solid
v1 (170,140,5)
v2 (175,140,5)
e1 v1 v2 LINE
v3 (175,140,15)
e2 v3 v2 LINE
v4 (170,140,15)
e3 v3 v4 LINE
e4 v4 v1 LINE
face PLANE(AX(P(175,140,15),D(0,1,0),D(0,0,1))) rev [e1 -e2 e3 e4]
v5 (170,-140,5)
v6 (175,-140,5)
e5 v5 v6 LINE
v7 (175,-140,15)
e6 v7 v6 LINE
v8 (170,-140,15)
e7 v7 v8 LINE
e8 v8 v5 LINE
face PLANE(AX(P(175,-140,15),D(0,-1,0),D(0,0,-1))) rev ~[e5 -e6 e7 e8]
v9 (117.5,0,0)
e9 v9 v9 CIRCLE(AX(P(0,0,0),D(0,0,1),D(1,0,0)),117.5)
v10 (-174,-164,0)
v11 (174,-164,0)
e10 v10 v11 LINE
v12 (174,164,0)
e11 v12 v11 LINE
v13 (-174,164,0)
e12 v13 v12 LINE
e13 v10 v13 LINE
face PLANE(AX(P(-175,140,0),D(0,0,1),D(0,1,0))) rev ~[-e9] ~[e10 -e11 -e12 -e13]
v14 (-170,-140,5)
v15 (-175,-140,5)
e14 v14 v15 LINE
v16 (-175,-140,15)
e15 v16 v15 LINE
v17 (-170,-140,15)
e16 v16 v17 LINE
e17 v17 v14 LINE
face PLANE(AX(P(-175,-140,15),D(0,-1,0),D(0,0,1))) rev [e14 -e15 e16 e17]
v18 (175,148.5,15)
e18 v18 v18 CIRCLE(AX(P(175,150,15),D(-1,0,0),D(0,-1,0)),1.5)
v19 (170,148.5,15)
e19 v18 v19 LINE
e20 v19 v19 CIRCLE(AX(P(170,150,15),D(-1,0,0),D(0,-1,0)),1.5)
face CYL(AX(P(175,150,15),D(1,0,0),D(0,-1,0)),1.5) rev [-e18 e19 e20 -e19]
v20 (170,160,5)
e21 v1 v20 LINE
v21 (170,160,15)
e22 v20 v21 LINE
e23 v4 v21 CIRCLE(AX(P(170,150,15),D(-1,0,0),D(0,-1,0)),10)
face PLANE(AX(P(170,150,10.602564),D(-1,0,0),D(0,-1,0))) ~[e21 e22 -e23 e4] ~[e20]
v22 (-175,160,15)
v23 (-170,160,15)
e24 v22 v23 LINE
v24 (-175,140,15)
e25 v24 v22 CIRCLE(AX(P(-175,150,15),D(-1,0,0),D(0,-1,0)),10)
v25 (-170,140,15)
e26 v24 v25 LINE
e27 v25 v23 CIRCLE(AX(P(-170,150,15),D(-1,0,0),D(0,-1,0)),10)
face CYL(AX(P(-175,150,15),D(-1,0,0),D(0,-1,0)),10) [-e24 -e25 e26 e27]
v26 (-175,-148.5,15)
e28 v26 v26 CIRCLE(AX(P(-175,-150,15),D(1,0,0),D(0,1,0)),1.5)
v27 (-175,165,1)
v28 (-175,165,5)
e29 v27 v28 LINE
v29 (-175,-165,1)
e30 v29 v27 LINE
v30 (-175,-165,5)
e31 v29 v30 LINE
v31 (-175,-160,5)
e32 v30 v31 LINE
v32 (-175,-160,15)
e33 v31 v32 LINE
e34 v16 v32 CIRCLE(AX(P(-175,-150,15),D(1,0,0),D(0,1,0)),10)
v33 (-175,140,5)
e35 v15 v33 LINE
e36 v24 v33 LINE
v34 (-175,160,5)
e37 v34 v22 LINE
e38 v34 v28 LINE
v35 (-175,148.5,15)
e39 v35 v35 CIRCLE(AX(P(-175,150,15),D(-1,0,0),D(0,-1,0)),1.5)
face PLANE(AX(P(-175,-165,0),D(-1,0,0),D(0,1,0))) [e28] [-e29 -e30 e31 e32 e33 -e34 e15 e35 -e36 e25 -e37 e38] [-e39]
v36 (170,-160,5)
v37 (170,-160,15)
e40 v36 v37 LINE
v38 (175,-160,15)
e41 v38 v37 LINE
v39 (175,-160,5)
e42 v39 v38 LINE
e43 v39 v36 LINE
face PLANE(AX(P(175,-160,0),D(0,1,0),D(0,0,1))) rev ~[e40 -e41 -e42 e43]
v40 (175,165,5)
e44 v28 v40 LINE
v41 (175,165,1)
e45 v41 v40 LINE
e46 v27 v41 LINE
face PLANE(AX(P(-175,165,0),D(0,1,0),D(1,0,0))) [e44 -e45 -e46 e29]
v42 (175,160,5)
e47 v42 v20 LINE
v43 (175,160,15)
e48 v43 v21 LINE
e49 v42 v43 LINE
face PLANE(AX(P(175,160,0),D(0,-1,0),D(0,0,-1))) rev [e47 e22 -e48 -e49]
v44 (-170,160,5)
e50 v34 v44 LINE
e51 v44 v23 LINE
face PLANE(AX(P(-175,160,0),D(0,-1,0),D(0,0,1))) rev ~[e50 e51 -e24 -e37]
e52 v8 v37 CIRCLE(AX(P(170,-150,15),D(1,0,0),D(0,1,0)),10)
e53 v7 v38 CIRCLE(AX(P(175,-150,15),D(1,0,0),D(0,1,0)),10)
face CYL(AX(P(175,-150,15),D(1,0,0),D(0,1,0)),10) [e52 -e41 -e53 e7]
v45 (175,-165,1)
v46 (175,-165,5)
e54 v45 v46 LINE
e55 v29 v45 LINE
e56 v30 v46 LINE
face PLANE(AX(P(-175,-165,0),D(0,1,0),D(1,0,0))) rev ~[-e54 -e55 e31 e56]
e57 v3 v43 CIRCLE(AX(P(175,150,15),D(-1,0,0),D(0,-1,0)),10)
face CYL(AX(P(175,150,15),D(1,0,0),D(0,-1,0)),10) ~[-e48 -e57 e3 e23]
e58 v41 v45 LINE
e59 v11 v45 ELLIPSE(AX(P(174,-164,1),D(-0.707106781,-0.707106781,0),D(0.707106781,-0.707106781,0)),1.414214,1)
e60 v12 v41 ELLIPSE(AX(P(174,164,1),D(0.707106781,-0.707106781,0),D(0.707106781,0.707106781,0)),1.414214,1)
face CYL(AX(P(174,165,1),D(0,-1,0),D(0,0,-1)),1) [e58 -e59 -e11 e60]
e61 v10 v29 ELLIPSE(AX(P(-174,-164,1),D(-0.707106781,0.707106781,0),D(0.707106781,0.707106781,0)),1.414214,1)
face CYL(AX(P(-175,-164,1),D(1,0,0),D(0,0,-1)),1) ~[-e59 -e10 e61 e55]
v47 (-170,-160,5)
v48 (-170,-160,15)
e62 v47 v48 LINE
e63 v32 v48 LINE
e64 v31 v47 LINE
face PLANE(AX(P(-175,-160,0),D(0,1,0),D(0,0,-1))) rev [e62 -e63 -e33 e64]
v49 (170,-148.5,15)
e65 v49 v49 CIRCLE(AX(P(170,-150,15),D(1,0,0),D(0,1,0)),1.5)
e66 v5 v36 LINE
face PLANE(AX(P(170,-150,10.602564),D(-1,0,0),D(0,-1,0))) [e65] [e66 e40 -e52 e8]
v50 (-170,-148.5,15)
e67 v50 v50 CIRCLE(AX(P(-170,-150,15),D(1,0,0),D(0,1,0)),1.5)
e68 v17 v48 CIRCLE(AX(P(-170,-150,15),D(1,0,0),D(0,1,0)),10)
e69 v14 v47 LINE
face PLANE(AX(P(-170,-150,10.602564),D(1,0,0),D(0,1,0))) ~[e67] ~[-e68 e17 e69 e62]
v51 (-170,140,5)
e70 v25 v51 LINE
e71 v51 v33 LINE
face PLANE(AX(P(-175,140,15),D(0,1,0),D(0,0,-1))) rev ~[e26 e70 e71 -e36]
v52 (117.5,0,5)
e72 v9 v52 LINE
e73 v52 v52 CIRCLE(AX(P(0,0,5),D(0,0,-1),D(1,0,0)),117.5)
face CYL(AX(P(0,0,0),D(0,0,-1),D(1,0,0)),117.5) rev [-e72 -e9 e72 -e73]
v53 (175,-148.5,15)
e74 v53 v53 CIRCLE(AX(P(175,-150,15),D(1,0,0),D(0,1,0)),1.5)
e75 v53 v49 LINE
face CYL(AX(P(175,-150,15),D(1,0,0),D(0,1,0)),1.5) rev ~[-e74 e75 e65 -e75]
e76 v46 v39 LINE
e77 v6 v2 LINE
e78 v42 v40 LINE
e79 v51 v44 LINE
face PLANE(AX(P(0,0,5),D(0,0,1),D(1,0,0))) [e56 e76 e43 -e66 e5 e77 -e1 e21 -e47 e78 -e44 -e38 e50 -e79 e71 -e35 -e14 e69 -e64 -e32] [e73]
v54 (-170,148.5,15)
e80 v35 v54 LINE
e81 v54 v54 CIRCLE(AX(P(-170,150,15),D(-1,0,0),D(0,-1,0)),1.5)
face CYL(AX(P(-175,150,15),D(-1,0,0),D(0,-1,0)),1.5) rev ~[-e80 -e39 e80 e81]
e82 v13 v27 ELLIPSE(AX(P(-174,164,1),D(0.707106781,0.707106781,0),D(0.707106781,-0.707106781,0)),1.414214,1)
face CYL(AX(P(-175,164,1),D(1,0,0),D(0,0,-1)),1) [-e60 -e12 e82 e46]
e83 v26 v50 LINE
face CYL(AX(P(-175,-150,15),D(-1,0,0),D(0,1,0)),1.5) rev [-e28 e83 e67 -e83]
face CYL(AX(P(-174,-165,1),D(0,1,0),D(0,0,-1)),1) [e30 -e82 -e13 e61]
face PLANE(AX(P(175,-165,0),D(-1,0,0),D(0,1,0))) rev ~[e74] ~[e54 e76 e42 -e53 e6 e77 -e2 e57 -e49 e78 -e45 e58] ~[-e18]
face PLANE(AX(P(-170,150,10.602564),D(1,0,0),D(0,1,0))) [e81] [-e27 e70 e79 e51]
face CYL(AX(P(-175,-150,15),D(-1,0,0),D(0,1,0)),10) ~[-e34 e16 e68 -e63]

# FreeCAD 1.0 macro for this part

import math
import FreeCAD as App
import Part
import Sketcher
from FreeCAD import Vector
Q = App.Units.Quantity


def edges_at(feature, points):
    """Names of the edges that pass closest to the given points."""
    edges = feature.Shape.Edges
    near = lambda p: min(range(len(edges)), key=lambda i: edges[i].distToShape(Part.Vertex(*p))[0])
    return sorted({f"Edge{near(p) + 1}" for p in points})


def add_polygon(sketch, points):
    """Adds a closed chain of lines whose ends are joined by coincident constraints."""
    first, n = sketch.GeometryCount, len(points)
    for a, b in zip(points, points[1:] + points[:1]):
        sketch.addGeometry(Part.LineSegment(App.Vector(*a, 0), App.Vector(*b, 0)), False)
    for i in range(n):
        sketch.addConstraint(Sketcher.Constraint("Coincident", first + i, 2, first + (i + 1) % n, 1))

doc = App.newDocument("Part")
body = doc.addObject("PartDesign::Body", "Body")

sketch1 = body.newObject("Sketcher::SketchObject", "Sketch")
sketch1.AttachmentSupport = (doc.getObject("XY_Plane"), [""])
sketch1.MapMode = "FlatFace"
add_polygon(sketch1, [(-175, 165), (-175, -165), (175, -165), (175, 165)])
sketch1.addConstraint(Sketcher.Constraint("Vertical", 0))
sketch1.addConstraint(Sketcher.Constraint("Horizontal", 1))
sketch1.addConstraint(Sketcher.Constraint("Vertical", 2))
sketch1.addConstraint(Sketcher.Constraint("Horizontal", 3))
sketch1.addConstraint(Sketcher.Constraint("Symmetric", 0, 2, 2, 2, -1, 1))
sketch1.addConstraint(Sketcher.Constraint("DistanceX", 1, 1, 1, 2, Q("350 mm")))
sketch1.addConstraint(Sketcher.Constraint("DistanceY", 0, 2, 0, 1, Q("330 mm")))
pad1 = body.newObject("PartDesign::Pad", "Pad")
pad1.Profile = sketch1
pad1.Length = 5

sketch2 = body.newObject("Sketcher::SketchObject", "Sketch001")
sketch2.AttachmentSupport = (doc.getObject("YZ_Plane"), [""])
sketch2.MapMode = "FlatFace"
sketch2.AttachmentOffset = App.Placement(Vector(0, 0, 175), App.Rotation())
sketch2.addGeometry(Part.LineSegment(Vector(-160, 15, 0), Vector(-160, 0, 0)), False)
sketch2.addGeometry(Part.LineSegment(Vector(-160, 0, 0), Vector(-140, 0, 0)), False)
sketch2.addGeometry(Part.LineSegment(Vector(-140, 0, 0), Vector(-140, 15, 0)), False)
sketch2.addGeometry(Part.ArcOfCircle(Part.Circle(Vector(-150, 15, 0), Vector(0, 0, 1), 10), math.radians(0), math.radians(180)), False)
sketch2.addConstraint(Sketcher.Constraint("Coincident", 0, 2, 1, 1))
sketch2.addConstraint(Sketcher.Constraint("Coincident", 1, 2, 2, 1))
sketch2.addConstraint(Sketcher.Constraint("Tangent", 2, 2, 3, 1))
sketch2.addConstraint(Sketcher.Constraint("Tangent", 3, 2, 0, 1))
sketch2.addConstraint(Sketcher.Constraint("Vertical", 0))
sketch2.addConstraint(Sketcher.Constraint("Horizontal", 1))
sketch2.addConstraint(Sketcher.Constraint("Vertical", 2))
sketch2.addConstraint(Sketcher.Constraint("PointOnObject", 0, 2, -1))
sketch2.addConstraint(Sketcher.Constraint("Radius", 3, Q("10 mm")))
sketch2.addConstraint(Sketcher.Constraint("DistanceY", 0, 2, 0, 1, Q("15 mm")))
sketch2.addConstraint(Sketcher.Constraint("DistanceX", 3, 3, -1, 1, Q("150 mm")))
pad2 = body.newObject("PartDesign::Pad", "Pad001")
pad2.Profile = sketch2
pad2.Length = 5
pad2.Reversed = True

sketch3 = body.newObject("Sketcher::SketchObject", "Sketch002")
sketch3.AttachmentSupport = (doc.getObject("YZ_Plane"), [""])
sketch3.MapMode = "FlatFace"
sketch3.AttachmentOffset = App.Placement(Vector(0, 0, 175), App.Rotation())
sketch3.addGeometry(Part.Circle(Vector(-150, 15, 0), Vector(0, 0, 1), 1.5), False)
sketch3.addConstraint(Sketcher.Constraint("Diameter", 0, Q("3 mm")))
sketch3.addConstraint(Sketcher.Constraint("DistanceX", 0, 3, -1, 1, Q("150 mm")))
sketch3.addConstraint(Sketcher.Constraint("DistanceY", -1, 1, 0, 3, Q("15 mm")))
pocket1 = body.newObject("PartDesign::Pocket", "Pocket")
pocket1.Profile = sketch3
pocket1.Length = 5
doc.recompute()

mirrored = body.newObject("PartDesign::Mirrored", "Mirrored")
mirrored.Originals = [pad2]
mirrored.MirrorPlane = (doc.getObject("XZ_Plane"), [""])
body.Tip = mirrored
doc.recompute()

mirrored2 = body.newObject("PartDesign::Mirrored", "Mirrored001")
mirrored2.Originals = [pocket1]
mirrored2.MirrorPlane = (doc.getObject("XZ_Plane"), [""])
body.Tip = mirrored2
doc.recompute()

mirrored3 = body.newObject("PartDesign::Mirrored", "Mirrored002")
mirrored3.Originals = [pad2]
mirrored3.MirrorPlane = (doc.getObject("YZ_Plane"), [""])
body.Tip = mirrored3
doc.recompute()

mirrored4 = body.newObject("PartDesign::Mirrored", "Mirrored003")
mirrored4.Originals = [pocket1]
mirrored4.MirrorPlane = (doc.getObject("YZ_Plane"), [""])
body.Tip = mirrored4
doc.recompute()

polarpattern = body.newObject("PartDesign::PolarPattern", "PolarPattern")
polarpattern.Originals = [pad2]
polarpattern.Axis = (doc.getObject("Z_Axis"), [""])
polarpattern.Angle = 360
polarpattern.Occurrences = 2
body.Tip = polarpattern
doc.recompute()

polarpattern2 = body.newObject("PartDesign::PolarPattern", "PolarPattern001")
polarpattern2.Originals = [pocket1]
polarpattern2.Axis = (doc.getObject("Z_Axis"), [""])
polarpattern2.Angle = 360
polarpattern2.Occurrences = 2
body.Tip = polarpattern2
doc.recompute()

fillet = body.newObject("PartDesign::Fillet", "Fillet")
fillet.Base = (polarpattern2, edges_at(polarpattern2, [
    (0, 165, 0),
    (175, 0, 0),
    (0, -165, 0),
    (-175, 0, 0),
]))
fillet.Radius = 1

sketch4 = body.newObject("Sketcher::SketchObject", "Sketch003")
sketch4.AttachmentSupport = (doc.getObject("XY_Plane"), [""])
sketch4.MapMode = "FlatFace"
sketch4.addGeometry(Part.Circle(Vector(0, 0, 0), Vector(0, 0, 1), 117.5), False)
sketch4.addConstraint(Sketcher.Constraint("Coincident", 0, 3, -1, 1))
sketch4.addConstraint(Sketcher.Constraint("Diameter", 0, Q("235 mm")))
pocket2 = body.newObject("PartDesign::Pocket", "Pocket001")
pocket2.Profile = sketch4
pocket2.Length = 10
pocket2.Reversed = True

doc.recompute()
